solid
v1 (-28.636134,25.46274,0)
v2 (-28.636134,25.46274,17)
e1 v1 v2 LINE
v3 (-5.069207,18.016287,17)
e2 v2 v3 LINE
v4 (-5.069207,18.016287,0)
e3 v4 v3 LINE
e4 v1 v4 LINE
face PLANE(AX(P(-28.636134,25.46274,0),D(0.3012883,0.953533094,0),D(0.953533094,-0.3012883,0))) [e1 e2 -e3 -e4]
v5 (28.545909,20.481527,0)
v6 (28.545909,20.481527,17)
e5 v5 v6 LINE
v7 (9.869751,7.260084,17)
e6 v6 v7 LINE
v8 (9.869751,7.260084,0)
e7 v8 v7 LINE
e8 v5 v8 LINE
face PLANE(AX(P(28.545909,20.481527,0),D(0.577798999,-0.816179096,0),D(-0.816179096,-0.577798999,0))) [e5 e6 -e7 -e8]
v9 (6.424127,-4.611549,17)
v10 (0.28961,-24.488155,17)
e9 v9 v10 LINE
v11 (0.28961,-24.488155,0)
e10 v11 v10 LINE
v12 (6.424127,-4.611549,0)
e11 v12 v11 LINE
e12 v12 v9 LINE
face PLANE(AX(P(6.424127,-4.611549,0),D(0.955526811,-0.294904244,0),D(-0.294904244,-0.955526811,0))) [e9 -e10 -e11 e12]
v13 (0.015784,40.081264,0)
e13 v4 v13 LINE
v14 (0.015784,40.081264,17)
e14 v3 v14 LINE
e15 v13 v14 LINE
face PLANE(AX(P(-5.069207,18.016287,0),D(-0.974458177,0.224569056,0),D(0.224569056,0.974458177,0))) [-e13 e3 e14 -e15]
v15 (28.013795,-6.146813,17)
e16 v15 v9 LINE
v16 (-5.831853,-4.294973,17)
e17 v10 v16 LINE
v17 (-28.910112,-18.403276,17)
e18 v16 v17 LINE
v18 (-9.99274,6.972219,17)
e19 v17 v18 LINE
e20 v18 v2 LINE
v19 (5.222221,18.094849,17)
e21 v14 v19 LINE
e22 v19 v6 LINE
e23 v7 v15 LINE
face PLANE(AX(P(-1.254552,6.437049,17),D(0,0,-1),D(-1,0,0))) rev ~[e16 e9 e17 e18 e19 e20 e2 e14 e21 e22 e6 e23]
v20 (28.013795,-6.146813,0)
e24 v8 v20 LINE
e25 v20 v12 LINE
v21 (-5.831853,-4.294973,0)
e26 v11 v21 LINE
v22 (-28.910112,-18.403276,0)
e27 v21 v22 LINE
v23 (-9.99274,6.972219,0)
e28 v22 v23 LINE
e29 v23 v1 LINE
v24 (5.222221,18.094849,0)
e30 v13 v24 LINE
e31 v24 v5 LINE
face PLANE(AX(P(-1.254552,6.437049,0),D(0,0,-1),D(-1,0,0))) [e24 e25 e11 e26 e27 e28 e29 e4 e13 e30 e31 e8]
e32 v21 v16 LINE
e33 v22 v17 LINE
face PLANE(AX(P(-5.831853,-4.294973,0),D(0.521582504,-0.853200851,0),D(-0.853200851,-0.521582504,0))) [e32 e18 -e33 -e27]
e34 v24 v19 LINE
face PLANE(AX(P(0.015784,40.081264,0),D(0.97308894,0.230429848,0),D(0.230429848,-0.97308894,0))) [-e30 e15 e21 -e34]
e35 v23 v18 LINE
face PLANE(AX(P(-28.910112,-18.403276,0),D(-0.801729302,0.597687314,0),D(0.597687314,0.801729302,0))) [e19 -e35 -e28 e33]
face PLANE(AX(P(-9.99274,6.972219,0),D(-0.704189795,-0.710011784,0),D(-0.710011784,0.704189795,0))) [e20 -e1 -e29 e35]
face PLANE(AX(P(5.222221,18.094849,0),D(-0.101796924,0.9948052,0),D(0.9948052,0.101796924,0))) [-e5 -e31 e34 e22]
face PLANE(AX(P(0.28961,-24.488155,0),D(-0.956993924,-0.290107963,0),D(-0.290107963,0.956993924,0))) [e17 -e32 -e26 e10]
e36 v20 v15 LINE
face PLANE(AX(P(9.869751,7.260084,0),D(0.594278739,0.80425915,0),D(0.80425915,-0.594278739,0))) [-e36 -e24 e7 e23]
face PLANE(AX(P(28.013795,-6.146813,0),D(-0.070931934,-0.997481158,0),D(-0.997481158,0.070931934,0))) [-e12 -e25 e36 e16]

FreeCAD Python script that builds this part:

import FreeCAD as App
import Part
import Sketcher
from FreeCAD import Vector


def add_polygon(sketch, points):
    """Adds a closed chain of lines whose ends are joined by coincident constraints."""
    first, n = sketch.GeometryCount, len(points)
    for a, b in zip(points, points[1:] + points[:1]):
        sketch.addGeometry(Part.LineSegment(App.Vector(*a, 0), App.Vector(*b, 0)), False)
    for i in range(n):
        sketch.addConstraint(Sketcher.Constraint("Coincident", first + i, 2, first + (i + 1) % n, 1))

doc = App.newDocument("Part")
body = doc.addObject("PartDesign::Body", "Body")

# Sketch on XY plane
sketch1 = body.newObject("Sketcher::SketchObject", "Sketch")
sketch1.AttachmentSupport = (doc.getObject("XY_Plane"), [""])
sketch1.MapMode = "FlatFace"
add_polygon(sketch1, [(5, 18), (0, 40), (-5, 18), (-29, 25), (-10, 7), (-29, -18), (-6, -4), (0, -24), (6, -5), (28, -6), (10, 7), (29, 20)])  # lines 0-11
sketch1.addConstraint([
    Sketcher.Constraint("DistanceY", 8, 2, 1, 2, 24.1631),
    Sketcher.Constraint("DistanceY", 7, 2, 11, 2, 22.706398),
    Sketcher.Constraint("Distance", 1, 22.643329),
    Sketcher.Constraint("Distance", 4, 31.650951),
    Sketcher.Constraint("DistanceY", -1, 1, 2, 2, 25.46274),
    Sketcher.Constraint("DistanceX", 3, 2, -1, 1, 9.99274),
    Sketcher.Constraint("DistanceY", -1, 1, 3, 2, 6.972219),
    Sketcher.Constraint("DistanceX", -1, 1, 6, 2, 0.28961),
    Sketcher.Constraint("DistanceY", 7, 2, -1, 1, 4.611549),
    Sketcher.Constraint("DistanceX", -1, 1, 9, 2, 9.869751),
    Sketcher.Constraint("DistanceX", -1, 1, 10, 2, 28.545909),
    Sketcher.Constraint("DistanceX", -1, 1, 11, 2, 5.222221),
    Sketcher.Constraint("DistanceX", 1, 2, 0, 2, 5.084991),
    Sketcher.Constraint("DistanceX", 4, 2, 2, 2, 0.273978),
    Sketcher.Constraint("DistanceY", 4, 2, 0, 2, 58.48454),
    Sketcher.Constraint("DistanceY", 5, 2, 1, 2, 22.31126),
    Sketcher.Constraint("DistanceX", 4, 2, 5, 2, 23.078259),
    Sketcher.Constraint("DistanceY", 6, 2, 5, 2, 20.193182),
    Sketcher.Constraint("DistanceX", 5, 2, 7, 2, 12.25598),
    Sketcher.Constraint("DistanceY", 8, 2, 10, 2, 26.62834),
    Sketcher.Constraint("Distance", 0, 22.594456),
    Sketcher.Constraint("Distance", 2, 24.715374),
    Sketcher.Constraint("Distance", 8, 21.644186),
    Sketcher.Constraint("Distance", 9, 22.559947),
])
pad1 = body.newObject("PartDesign::Pad", "Pad")
pad1.Profile = sketch1
pad1.Length = 17

doc.recompute()
